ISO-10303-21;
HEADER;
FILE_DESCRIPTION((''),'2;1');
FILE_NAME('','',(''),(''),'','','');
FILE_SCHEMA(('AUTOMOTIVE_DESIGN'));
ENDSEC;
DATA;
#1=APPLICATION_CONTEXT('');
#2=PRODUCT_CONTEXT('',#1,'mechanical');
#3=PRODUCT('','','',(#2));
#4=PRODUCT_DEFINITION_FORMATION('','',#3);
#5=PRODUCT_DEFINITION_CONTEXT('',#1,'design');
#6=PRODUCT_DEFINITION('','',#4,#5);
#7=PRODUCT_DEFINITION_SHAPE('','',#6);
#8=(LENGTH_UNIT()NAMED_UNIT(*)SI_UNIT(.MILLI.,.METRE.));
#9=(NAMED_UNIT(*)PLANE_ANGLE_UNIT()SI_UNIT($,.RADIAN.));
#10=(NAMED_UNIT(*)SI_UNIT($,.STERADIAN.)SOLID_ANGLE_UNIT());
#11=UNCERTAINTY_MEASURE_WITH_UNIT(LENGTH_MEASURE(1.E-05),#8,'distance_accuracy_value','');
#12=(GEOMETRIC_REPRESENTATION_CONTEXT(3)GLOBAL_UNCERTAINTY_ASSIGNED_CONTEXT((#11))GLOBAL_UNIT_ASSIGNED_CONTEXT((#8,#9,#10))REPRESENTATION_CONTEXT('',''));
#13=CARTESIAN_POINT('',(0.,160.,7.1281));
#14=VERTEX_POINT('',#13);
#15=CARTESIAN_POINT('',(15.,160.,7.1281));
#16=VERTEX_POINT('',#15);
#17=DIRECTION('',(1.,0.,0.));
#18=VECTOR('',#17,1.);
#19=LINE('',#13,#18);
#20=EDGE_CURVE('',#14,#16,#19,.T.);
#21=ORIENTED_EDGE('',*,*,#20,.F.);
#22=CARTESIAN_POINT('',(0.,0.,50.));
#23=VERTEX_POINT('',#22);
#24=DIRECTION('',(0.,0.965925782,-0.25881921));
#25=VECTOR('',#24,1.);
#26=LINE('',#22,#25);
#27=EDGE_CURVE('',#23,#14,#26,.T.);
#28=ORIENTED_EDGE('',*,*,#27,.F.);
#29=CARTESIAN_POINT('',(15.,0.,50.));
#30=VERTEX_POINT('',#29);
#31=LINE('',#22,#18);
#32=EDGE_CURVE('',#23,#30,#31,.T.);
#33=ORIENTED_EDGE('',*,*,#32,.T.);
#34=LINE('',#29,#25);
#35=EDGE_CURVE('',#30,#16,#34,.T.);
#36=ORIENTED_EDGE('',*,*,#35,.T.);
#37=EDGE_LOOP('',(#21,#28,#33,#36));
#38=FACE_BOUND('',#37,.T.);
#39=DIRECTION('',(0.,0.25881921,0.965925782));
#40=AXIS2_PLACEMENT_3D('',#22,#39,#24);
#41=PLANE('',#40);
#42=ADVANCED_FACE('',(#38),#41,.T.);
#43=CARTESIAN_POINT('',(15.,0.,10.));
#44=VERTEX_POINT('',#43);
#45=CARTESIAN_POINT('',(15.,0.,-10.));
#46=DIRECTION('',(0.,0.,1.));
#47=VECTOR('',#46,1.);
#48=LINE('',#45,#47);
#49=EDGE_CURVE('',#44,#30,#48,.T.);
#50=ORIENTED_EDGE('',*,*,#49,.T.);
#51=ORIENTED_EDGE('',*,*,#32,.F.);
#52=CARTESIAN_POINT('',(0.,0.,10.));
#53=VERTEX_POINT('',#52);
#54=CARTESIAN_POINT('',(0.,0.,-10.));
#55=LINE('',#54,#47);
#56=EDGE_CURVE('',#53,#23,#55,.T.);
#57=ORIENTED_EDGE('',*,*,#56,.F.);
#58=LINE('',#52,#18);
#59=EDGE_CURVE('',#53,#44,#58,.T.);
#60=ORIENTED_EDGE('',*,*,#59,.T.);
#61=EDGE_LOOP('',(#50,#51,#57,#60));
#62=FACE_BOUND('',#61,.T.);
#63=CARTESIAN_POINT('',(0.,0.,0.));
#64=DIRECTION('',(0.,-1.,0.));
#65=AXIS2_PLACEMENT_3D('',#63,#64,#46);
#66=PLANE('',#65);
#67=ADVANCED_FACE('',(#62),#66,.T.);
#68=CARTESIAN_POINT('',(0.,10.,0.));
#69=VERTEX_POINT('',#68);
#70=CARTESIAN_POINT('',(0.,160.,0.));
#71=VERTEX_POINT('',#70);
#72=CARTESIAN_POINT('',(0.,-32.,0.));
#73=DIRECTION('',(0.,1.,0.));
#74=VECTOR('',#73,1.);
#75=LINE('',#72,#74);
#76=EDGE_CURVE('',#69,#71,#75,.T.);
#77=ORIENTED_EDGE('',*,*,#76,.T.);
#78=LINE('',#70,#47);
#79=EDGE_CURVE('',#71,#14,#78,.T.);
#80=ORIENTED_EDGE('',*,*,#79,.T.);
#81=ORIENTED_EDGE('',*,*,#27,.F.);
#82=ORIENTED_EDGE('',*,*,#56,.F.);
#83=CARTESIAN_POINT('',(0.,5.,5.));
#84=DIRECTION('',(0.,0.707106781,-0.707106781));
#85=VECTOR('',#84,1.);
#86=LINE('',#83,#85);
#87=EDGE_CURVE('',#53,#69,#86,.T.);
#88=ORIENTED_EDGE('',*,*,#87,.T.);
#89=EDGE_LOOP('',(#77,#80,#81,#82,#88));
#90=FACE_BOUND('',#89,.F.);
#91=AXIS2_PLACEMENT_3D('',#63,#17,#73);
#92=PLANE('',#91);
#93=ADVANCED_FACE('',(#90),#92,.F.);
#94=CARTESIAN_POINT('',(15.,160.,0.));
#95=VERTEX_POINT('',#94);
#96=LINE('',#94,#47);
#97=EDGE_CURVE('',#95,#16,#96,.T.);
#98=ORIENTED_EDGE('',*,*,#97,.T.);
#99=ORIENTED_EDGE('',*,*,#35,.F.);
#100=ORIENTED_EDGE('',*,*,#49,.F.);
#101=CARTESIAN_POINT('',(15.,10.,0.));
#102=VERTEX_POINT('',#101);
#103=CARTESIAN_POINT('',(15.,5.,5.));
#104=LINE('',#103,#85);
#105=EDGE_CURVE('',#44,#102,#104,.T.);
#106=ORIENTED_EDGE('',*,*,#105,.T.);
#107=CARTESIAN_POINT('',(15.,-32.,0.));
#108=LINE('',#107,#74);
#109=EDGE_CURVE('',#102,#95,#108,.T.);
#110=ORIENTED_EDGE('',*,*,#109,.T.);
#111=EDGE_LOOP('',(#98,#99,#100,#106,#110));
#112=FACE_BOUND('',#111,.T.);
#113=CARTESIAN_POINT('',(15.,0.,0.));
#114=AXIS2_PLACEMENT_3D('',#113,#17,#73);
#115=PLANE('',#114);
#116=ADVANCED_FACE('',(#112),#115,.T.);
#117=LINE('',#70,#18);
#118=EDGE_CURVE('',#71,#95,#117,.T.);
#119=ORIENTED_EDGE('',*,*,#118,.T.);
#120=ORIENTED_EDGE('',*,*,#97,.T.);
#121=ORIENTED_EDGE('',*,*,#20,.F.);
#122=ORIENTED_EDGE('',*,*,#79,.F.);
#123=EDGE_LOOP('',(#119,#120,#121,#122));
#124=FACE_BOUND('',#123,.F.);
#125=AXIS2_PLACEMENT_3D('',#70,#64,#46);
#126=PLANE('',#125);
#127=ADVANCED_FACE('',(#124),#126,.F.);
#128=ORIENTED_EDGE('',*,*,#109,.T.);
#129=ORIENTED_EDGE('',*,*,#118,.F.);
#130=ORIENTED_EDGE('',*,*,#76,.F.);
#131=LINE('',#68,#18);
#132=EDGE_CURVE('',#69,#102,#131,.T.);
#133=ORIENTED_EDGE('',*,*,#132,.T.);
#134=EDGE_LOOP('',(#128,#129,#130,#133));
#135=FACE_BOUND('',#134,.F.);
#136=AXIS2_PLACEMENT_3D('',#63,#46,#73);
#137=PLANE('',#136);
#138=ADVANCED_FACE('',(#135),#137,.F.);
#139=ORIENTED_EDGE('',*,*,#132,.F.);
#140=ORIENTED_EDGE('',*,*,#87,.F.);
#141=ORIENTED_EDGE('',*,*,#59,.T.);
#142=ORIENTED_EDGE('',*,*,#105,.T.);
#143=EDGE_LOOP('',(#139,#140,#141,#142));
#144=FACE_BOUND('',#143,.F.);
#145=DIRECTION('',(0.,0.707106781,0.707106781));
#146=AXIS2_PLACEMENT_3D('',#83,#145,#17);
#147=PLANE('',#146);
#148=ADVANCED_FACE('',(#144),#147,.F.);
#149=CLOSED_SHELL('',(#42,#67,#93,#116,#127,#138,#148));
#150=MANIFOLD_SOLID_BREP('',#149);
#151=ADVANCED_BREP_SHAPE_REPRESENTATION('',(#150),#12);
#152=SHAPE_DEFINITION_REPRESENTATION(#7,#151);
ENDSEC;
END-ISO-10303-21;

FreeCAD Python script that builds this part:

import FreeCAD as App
import Part
import Sketcher
Q = App.Units.Quantity


def edges_at(feature, points):
    """Names of the edges that pass closest to the given points."""
    edges = feature.Shape.Edges
    near = lambda p: min(range(len(edges)), key=lambda i: edges[i].distToShape(Part.Vertex(*p))[0])
    return sorted({f"Edge{near(p) + 1}" for p in points})


def add_polygon(sketch, points):
    """Adds a closed chain of lines whose ends are joined by coincident constraints."""
    first, n = sketch.GeometryCount, len(points)
    for a, b in zip(points, points[1:] + points[:1]):
        sketch.addGeometry(Part.LineSegment(App.Vector(*a, 0), App.Vector(*b, 0)), False)
    for i in range(n):
        sketch.addConstraint(Sketcher.Constraint("Coincident", first + i, 2, first + (i + 1) % n, 1))

doc = App.newDocument("Part")
body = doc.addObject("PartDesign::Body", "Body")

# Sketch on YZ plane
sketch1 = doc.addObject("Sketcher::SketchObject", "Sketch")
body.addObject(sketch1)
sketch1.AttachmentSupport = (doc.YZ_Plane, [""])
sketch1.MapMode = "FlatFace"
add_polygon(sketch1, [(0, 50), (0, 0), (160, 0), (160, 7)])  # lines 0-3
sketch1.addConstraint([
    Sketcher.Constraint("Vertical", 0),
    Sketcher.Constraint("Horizontal", 1),
    Sketcher.Constraint("Vertical", 2),
    Sketcher.Constraint("Coincident", 0, 2, -1, 1),
    Sketcher.Constraint("DistanceX", 1, 1, 1, 2, 160.0),
    Sketcher.Constraint("DistanceY", 0, 2, 0, 1, 50.0),
    Sketcher.Constraint("Angle", 3, Q("165 deg")),
])
pad1 = doc.addObject("PartDesign::Pad", "Pad")
body.addObject(pad1)
pad1.Profile = sketch1
pad1.Length = 15
doc.recompute()

chamfer = doc.addObject("PartDesign::Chamfer", "Chamfer")
body.addObject(chamfer)
chamfer.Base = (pad1, edges_at(pad1, [(7.5, 0, 0)]))
chamfer.Size = 10

doc.recompute()
